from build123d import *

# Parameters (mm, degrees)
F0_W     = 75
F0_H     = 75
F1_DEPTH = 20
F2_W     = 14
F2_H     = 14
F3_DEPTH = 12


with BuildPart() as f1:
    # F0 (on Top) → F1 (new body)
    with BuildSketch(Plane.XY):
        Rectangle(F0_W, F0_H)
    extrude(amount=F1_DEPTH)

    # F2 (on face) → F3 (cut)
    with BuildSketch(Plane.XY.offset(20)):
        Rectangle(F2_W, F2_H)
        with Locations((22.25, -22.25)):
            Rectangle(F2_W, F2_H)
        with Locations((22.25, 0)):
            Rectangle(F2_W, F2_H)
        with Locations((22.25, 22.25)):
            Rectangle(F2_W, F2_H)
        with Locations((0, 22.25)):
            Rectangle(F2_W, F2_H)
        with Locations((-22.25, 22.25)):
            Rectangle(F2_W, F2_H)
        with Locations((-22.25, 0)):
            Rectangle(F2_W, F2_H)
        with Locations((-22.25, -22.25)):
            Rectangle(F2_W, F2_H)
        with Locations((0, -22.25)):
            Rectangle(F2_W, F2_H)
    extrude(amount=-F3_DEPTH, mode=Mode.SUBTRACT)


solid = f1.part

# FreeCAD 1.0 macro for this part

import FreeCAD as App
import Part
import Sketcher
from FreeCAD import Vector

doc = App.newDocument("Part")
body = doc.addObject("PartDesign::Body", "Body")

# Sketch on XY plane
sketch1 = doc.addObject("Sketcher::SketchObject", "Sketch")
body.addObject(sketch1)
sketch1.AttachmentSupport = (doc.XY_Plane, [""])
sketch1.MapMode = "FlatFace"
sketch1.addGeometry(Part.LineSegment(Vector(-37.5, 37.5, 0), Vector(-37.5, -37.5, 0)), False)
sketch1.addGeometry(Part.LineSegment(Vector(-37.5, -37.5, 0), Vector(37.5, -37.5, 0)), False)
sketch1.addGeometry(Part.LineSegment(Vector(37.5, -37.5, 0), Vector(37.5, 37.5, 0)), False)
sketch1.addGeometry(Part.LineSegment(Vector(37.5, 37.5, 0), Vector(-37.5, 37.5, 0)), False)
sketch1.addConstraint(Sketcher.Constraint("Coincident", 0, 2, 1, 1))
sketch1.addConstraint(Sketcher.Constraint("Coincident", 1, 2, 2, 1))
sketch1.addConstraint(Sketcher.Constraint("Coincident", 2, 2, 3, 1))
sketch1.addConstraint(Sketcher.Constraint("Coincident", 3, 2, 0, 1))
sketch1.addConstraint(Sketcher.Constraint("Vertical", 0))
sketch1.addConstraint(Sketcher.Constraint("Horizontal", 1))
sketch1.addConstraint(Sketcher.Constraint("Vertical", 2))
sketch1.addConstraint(Sketcher.Constraint("Horizontal", 3))
sketch1.addConstraint(Sketcher.Constraint("Symmetric", 0, 2, 2, 2, -1, 1))
sketch1.addConstraint(Sketcher.Constraint("Equal", 3, 0))
sketch1.addConstraint(Sketcher.Constraint("DistanceX", 1, 1, 1, 2, 75.0))
pad1 = doc.addObject("PartDesign::Pad", "Pad")
body.addObject(pad1)
pad1.Profile = sketch1
pad1.Length = 20

# Sketch on XY plane
sketch2 = doc.addObject("Sketcher::SketchObject", "Sketch001")
body.addObject(sketch2)
sketch2.AttachmentSupport = (doc.XY_Plane, [""])
sketch2.MapMode = "FlatFace"
sketch2.AttachmentOffset = App.Placement(Vector(0, 0, 20), App.Rotation())
sketch2.addGeometry(Part.LineSegment(Vector(-7, 7, 0), Vector(-7, -7, 0)), False)
sketch2.addGeometry(Part.LineSegment(Vector(-7, -7, 0), Vector(7, -7, 0)), False)
sketch2.addGeometry(Part.LineSegment(Vector(7, -7, 0), Vector(7, 7, 0)), False)
sketch2.addGeometry(Part.LineSegment(Vector(7, 7, 0), Vector(-7, 7, 0)), False)
sketch2.addGeometry(Part.LineSegment(Vector(15.25, -15.25, 0), Vector(15.25, -29.25, 0)), False)
sketch2.addGeometry(Part.LineSegment(Vector(15.25, -29.25, 0), Vector(29.25, -29.25, 0)), False)
sketch2.addGeometry(Part.LineSegment(Vector(29.25, -29.25, 0), Vector(29.25, -15.25, 0)), False)
sketch2.addGeometry(Part.LineSegment(Vector(29.25, -15.25, 0), Vector(15.25, -15.25, 0)), False)
sketch2.addGeometry(Part.LineSegment(Vector(15.25, 7, 0), Vector(15.25, -7, 0)), False)
sketch2.addGeometry(Part.LineSegment(Vector(15.25, -7, 0), Vector(29.25, -7, 0)), False)
sketch2.addGeometry(Part.LineSegment(Vector(29.25, -7, 0), Vector(29.25, 7, 0)), False)
sketch2.addGeometry(Part.LineSegment(Vector(29.25, 7, 0), Vector(15.25, 7, 0)), False)
sketch2.addGeometry(Part.LineSegment(Vector(15.25, 29.25, 0), Vector(15.25, 15.25, 0)), False)
sketch2.addGeometry(Part.LineSegment(Vector(15.25, 15.25, 0), Vector(29.25, 15.25, 0)), False)
sketch2.addGeometry(Part.LineSegment(Vector(29.25, 15.25, 0), Vector(29.25, 29.25, 0)), False)
sketch2.addGeometry(Part.LineSegment(Vector(29.25, 29.25, 0), Vector(15.25, 29.25, 0)), False)
sketch2.addGeometry(Part.LineSegment(Vector(-7, 29.25, 0), Vector(-7, 15.25, 0)), False)
sketch2.addGeometry(Part.LineSegment(Vector(-7, 15.25, 0), Vector(7, 15.25, 0)), False)
sketch2.addGeometry(Part.LineSegment(Vector(7, 15.25, 0), Vector(7, 29.25, 0)), False)
sketch2.addGeometry(Part.LineSegment(Vector(7, 29.25, 0), Vector(-7, 29.25, 0)), False)
sketch2.addGeometry(Part.LineSegment(Vector(-29.25, 29.25, 0), Vector(-29.25, 15.25, 0)), False)
sketch2.addGeometry(Part.LineSegment(Vector(-29.25, 15.25, 0), Vector(-15.25, 15.25, 0)), False)
sketch2.addGeometry(Part.LineSegment(Vector(-15.25, 15.25, 0), Vector(-15.25, 29.25, 0)), False)
sketch2.addGeometry(Part.LineSegment(Vector(-15.25, 29.25, 0), Vector(-29.25, 29.25, 0)), False)
sketch2.addGeometry(Part.LineSegment(Vector(-29.25, 7, 0), Vector(-29.25, -7, 0)), False)
sketch2.addGeometry(Part.LineSegment(Vector(-29.25, -7, 0), Vector(-15.25, -7, 0)), False)
sketch2.addGeometry(Part.LineSegment(Vector(-15.25, -7, 0), Vector(-15.25, 7, 0)), False)
sketch2.addGeometry(Part.LineSegment(Vector(-15.25, 7, 0), Vector(-29.25, 7, 0)), False)
sketch2.addGeometry(Part.LineSegment(Vector(-29.25, -15.25, 0), Vector(-29.25, -29.25, 0)), False)
sketch2.addGeometry(Part.LineSegment(Vector(-29.25, -29.25, 0), Vector(-15.25, -29.25, 0)), False)
sketch2.addGeometry(Part.LineSegment(Vector(-15.25, -29.25, 0), Vector(-15.25, -15.25, 0)), False)
sketch2.addGeometry(Part.LineSegment(Vector(-15.25, -15.25, 0), Vector(-29.25, -15.25, 0)), False)
sketch2.addGeometry(Part.LineSegment(Vector(-7, -15.25, 0), Vector(-7, -29.25, 0)), False)
sketch2.addGeometry(Part.LineSegment(Vector(-7, -29.25, 0), Vector(7, -29.25, 0)), False)
sketch2.addGeometry(Part.LineSegment(Vector(7, -29.25, 0), Vector(7, -15.25, 0)), False)
sketch2.addGeometry(Part.LineSegment(Vector(7, -15.25, 0), Vector(-7, -15.25, 0)), False)
sketch2.addConstraint(Sketcher.Constraint("Coincident", 0, 2, 1, 1))
sketch2.addConstraint(Sketcher.Constraint("Coincident", 1, 2, 2, 1))
sketch2.addConstraint(Sketcher.Constraint("Coincident", 2, 2, 3, 1))
sketch2.addConstraint(Sketcher.Constraint("Coincident", 3, 2, 0, 1))
sketch2.addConstraint(Sketcher.Constraint("Coincident", 4, 2, 5, 1))
sketch2.addConstraint(Sketcher.Constraint("Coincident", 5, 2, 6, 1))
sketch2.addConstraint(Sketcher.Constraint("Coincident", 6, 2, 7, 1))
sketch2.addConstraint(Sketcher.Constraint("Coincident", 7, 2, 4, 1))
sketch2.addConstraint(Sketcher.Constraint("Coincident", 8, 2, 9, 1))
sketch2.addConstraint(Sketcher.Constraint("Coincident", 9, 2, 10, 1))
sketch2.addConstraint(Sketcher.Constraint("Coincident", 10, 2, 11, 1))
sketch2.addConstraint(Sketcher.Constraint("Coincident", 11, 2, 8, 1))
sketch2.addConstraint(Sketcher.Constraint("Coincident", 12, 2, 13, 1))
sketch2.addConstraint(Sketcher.Constraint("Coincident", 13, 2, 14, 1))
sketch2.addConstraint(Sketcher.Constraint("Coincident", 14, 2, 15, 1))
sketch2.addConstraint(Sketcher.Constraint("Coincident", 15, 2, 12, 1))
sketch2.addConstraint(Sketcher.Constraint("Coincident", 16, 2, 17, 1))
sketch2.addConstraint(Sketcher.Constraint("Coincident", 17, 2, 18, 1))
sketch2.addConstraint(Sketcher.Constraint("Coincident", 18, 2, 19, 1))
sketch2.addConstraint(Sketcher.Constraint("Coincident", 19, 2, 16, 1))
sketch2.addConstraint(Sketcher.Constraint("Coincident", 20, 2, 21, 1))
sketch2.addConstraint(Sketcher.Constraint("Coincident", 21, 2, 22, 1))
sketch2.addConstraint(Sketcher.Constraint("Coincident", 22, 2, 23, 1))
sketch2.addConstraint(Sketcher.Constraint("Coincident", 23, 2, 20, 1))
sketch2.addConstraint(Sketcher.Constraint("Coincident", 24, 2, 25, 1))
sketch2.addConstraint(Sketcher.Constraint("Coincident", 25, 2, 26, 1))
sketch2.addConstraint(Sketcher.Constraint("Coincident", 26, 2, 27, 1))
sketch2.addConstraint(Sketcher.Constraint("Coincident", 27, 2, 24, 1))
sketch2.addConstraint(Sketcher.Constraint("Coincident", 28, 2, 29, 1))
sketch2.addConstraint(Sketcher.Constraint("Coincident", 29, 2, 30, 1))
sketch2.addConstraint(Sketcher.Constraint("Coincident", 30, 2, 31, 1))
sketch2.addConstraint(Sketcher.Constraint("Coincident", 31, 2, 28, 1))
sketch2.addConstraint(Sketcher.Constraint("Coincident", 32, 2, 33, 1))
sketch2.addConstraint(Sketcher.Constraint("Coincident", 33, 2, 34, 1))
sketch2.addConstraint(Sketcher.Constraint("Coincident", 34, 2, 35, 1))
sketch2.addConstraint(Sketcher.Constraint("Coincident", 35, 2, 32, 1))
sketch2.addConstraint(Sketcher.Constraint("Vertical", 0))
sketch2.addConstraint(Sketcher.Constraint("Horizontal", 1))
sketch2.addConstraint(Sketcher.Constraint("Vertical", 2))
sketch2.addConstraint(Sketcher.Constraint("Horizontal", 3))
sketch2.addConstraint(Sketcher.Constraint("Vertical", 4))
sketch2.addConstraint(Sketcher.Constraint("Horizontal", 5))
sketch2.addConstraint(Sketcher.Constraint("Vertical", 6))
sketch2.addConstraint(Sketcher.Constraint("Horizontal", 7))
sketch2.addConstraint(Sketcher.Constraint("Vertical", 8))
sketch2.addConstraint(Sketcher.Constraint("Horizontal", 9))
sketch2.addConstraint(Sketcher.Constraint("Vertical", 10))
sketch2.addConstraint(Sketcher.Constraint("Horizontal", 11))
sketch2.addConstraint(Sketcher.Constraint("Vertical", 12))
sketch2.addConstraint(Sketcher.Constraint("Horizontal", 13))
sketch2.addConstraint(Sketcher.Constraint("Vertical", 14))
sketch2.addConstraint(Sketcher.Constraint("Horizontal", 15))
sketch2.addConstraint(Sketcher.Constraint("Vertical", 16))
sketch2.addConstraint(Sketcher.Constraint("Horizontal", 17))
sketch2.addConstraint(Sketcher.Constraint("Vertical", 18))
sketch2.addConstraint(Sketcher.Constraint("Horizontal", 19))
sketch2.addConstraint(Sketcher.Constraint("Vertical", 20))
sketch2.addConstraint(Sketcher.Constraint("Horizontal", 21))
sketch2.addConstraint(Sketcher.Constraint("Vertical", 22))
sketch2.addConstraint(Sketcher.Constraint("Horizontal", 23))
sketch2.addConstraint(Sketcher.Constraint("Vertical", 24))
sketch2.addConstraint(Sketcher.Constraint("Horizontal", 25))
sketch2.addConstraint(Sketcher.Constraint("Vertical", 26))
sketch2.addConstraint(Sketcher.Constraint("Horizontal", 27))
sketch2.addConstraint(Sketcher.Constraint("Vertical", 28))
sketch2.addConstraint(Sketcher.Constraint("Horizontal", 29))
sketch2.addConstraint(Sketcher.Constraint("Vertical", 30))
sketch2.addConstraint(Sketcher.Constraint("Horizontal", 31))
sketch2.addConstraint(Sketcher.Constraint("Vertical", 32))
sketch2.addConstraint(Sketcher.Constraint("Horizontal", 33))
sketch2.addConstraint(Sketcher.Constraint("Vertical", 34))
sketch2.addConstraint(Sketcher.Constraint("Horizontal", 35))
sketch2.addConstraint(Sketcher.Constraint("Symmetric", 0, 2, 2, 2, -1, 1))
sketch2.addConstraint(Sketcher.Constraint("Symmetric", 6, 2, 20, 2, -1, 1))
sketch2.addConstraint(Sketcher.Constraint("Symmetric", 4, 2, 22, 2, -1, 1))
sketch2.addConstraint(Sketcher.Constraint("Symmetric", 10, 2, 24, 2, -1, 1))
sketch2.addConstraint(Sketcher.Constraint("Symmetric", 8, 2, 26, 2, -1, 1))
sketch2.addConstraint(Sketcher.Constraint("Symmetric", 14, 2, 28, 2, -1, 1))
sketch2.addConstraint(Sketcher.Constraint("Symmetric", 12, 2, 30, 2, -1, 1))
sketch2.addConstraint(Sketcher.Constraint("Symmetric", 18, 2, 32, 2, -1, 1))
sketch2.addConstraint(Sketcher.Constraint("Symmetric", 16, 2, 34, 2, -1, 1))
sketch2.addConstraint(Sketcher.Constraint("Symmetric", 13, 2, 20, 2, -2))
sketch2.addConstraint(Sketcher.Constraint("Symmetric", 15, 2, 22, 2, -2))
sketch2.addConstraint(Sketcher.Constraint("Horizontal", 1, 2, 8, 2))
sketch2.addConstraint(Sketcher.Constraint("Horizontal", 3, 2, 10, 2))
sketch2.addConstraint(Sketcher.Constraint("Horizontal", 13, 2, 16, 2))
sketch2.addConstraint(Sketcher.Constraint("Horizontal", 15, 2, 18, 2))
sketch2.addConstraint(Sketcher.Constraint("Vertical", 7, 2, 8, 2))
sketch2.addConstraint(Sketcher.Constraint("Vertical", 6, 2, 9, 2))
sketch2.addConstraint(Sketcher.Constraint("Vertical", 3, 2, 16, 2))
sketch2.addConstraint(Sketcher.Constraint("Vertical", 2, 2, 17, 2))
sketch2.addConstraint(Sketcher.Constraint("Equal", 3, 5))
sketch2.addConstraint(Sketcher.Constraint("Equal", 35, 0))
sketch2.addConstraint(Sketcher.Constraint("Equal", 2, 4))
sketch2.addConstraint(Sketcher.Constraint("DistanceX", 1, 1, 1, 2, 14.0))
sketch2.addConstraint(Sketcher.Constraint("DistanceX", 29, 2, 4, 2, 30.5))
sketch2.addConstraint(Sketcher.Constraint("DistanceY", 4, 2, -1, 1, 29.25))
pocket1 = doc.addObject("PartDesign::Pocket", "Pocket")
body.addObject(pocket1)
pocket1.Profile = sketch2
pocket1.Length = 12

doc.recompute()
